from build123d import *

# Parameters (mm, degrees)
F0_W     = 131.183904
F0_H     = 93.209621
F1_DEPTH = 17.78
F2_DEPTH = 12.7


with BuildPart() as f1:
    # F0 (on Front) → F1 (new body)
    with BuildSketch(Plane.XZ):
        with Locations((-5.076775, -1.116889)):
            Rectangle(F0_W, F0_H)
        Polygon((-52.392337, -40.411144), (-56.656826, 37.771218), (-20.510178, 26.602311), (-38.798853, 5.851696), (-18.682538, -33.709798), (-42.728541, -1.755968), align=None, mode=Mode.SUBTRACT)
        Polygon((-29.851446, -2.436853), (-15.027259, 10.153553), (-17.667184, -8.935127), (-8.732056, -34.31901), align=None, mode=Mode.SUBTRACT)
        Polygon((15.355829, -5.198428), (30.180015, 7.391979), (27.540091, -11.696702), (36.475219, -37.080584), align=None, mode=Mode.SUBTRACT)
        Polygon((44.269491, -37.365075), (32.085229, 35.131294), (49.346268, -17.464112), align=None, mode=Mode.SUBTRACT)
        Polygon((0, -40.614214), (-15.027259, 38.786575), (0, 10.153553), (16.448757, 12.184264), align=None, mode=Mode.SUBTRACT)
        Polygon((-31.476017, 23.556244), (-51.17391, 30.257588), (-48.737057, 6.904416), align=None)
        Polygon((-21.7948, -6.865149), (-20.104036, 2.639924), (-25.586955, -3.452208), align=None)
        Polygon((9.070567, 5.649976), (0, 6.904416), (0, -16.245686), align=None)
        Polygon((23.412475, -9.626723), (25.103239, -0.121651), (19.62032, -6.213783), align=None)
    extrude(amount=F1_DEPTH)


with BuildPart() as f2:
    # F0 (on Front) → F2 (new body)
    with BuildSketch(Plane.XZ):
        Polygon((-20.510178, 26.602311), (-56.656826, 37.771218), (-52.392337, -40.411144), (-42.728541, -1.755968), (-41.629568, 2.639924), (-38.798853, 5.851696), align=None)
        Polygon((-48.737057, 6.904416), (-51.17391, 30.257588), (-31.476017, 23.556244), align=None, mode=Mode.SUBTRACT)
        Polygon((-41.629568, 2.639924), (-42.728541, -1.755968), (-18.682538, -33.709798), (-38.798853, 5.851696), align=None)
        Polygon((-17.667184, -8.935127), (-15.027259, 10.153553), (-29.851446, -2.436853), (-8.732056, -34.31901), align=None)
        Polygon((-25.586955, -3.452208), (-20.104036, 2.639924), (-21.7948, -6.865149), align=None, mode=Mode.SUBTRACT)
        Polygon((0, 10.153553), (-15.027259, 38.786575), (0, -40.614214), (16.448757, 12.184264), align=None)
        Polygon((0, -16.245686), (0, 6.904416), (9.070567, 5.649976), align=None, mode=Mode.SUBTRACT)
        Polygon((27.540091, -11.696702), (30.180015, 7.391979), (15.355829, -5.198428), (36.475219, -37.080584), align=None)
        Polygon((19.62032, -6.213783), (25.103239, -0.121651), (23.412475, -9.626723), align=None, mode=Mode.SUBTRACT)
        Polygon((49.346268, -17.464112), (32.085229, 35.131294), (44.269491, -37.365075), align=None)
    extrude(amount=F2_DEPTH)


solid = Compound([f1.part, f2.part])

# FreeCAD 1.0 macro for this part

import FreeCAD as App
import Part
import Sketcher
from FreeCAD import Vector
Q = App.Units.Quantity

doc = App.newDocument("Part")
body = doc.addObject("PartDesign::Body", "Body")
body.AllowCompound = True

sketch1 = doc.addObject("Sketcher::SketchObject", "Sketch")
body.addObject(sketch1)
sketch1.AttachmentSupport = (doc.XZ_Plane, [""])
sketch1.MapMode = "FlatFace"
sketch1.addGeometry([
    Part.LineSegment(Vector(-71, 45, 0), Vector(-71, -48, 0)),
    Part.LineSegment(Vector(-71, -48, 0), Vector(61, -48, 0)),
    Part.LineSegment(Vector(61, -48, 0), Vector(61, 45, 0)),
    Part.LineSegment(Vector(61, 45, 0), Vector(-71, 45, 0)),
    Part.LineSegment(Vector(-43, -2, 0), Vector(-52, -40, 0)),
    Part.LineSegment(Vector(-52, -40, 0), Vector(-57, 38, 0)),
    Part.LineSegment(Vector(-57, 38, 0), Vector(-21, 27, 0)),
    Part.LineSegment(Vector(-21, 27, 0), Vector(-39, 6, 0)),
    Part.LineSegment(Vector(-39, 6, 0), Vector(-19, -34, 0)),
    Part.LineSegment(Vector(-19, -34, 0), Vector(-43, -2, 0)),
    Part.LineSegment(Vector(-9, -34, 0), Vector(-30, -2, 0)),
    Part.LineSegment(Vector(-30, -2, 0), Vector(-15, 10, 0)),
    Part.LineSegment(Vector(-15, 10, 0), Vector(-18, -9, 0)),
    Part.LineSegment(Vector(-18, -9, 0), Vector(-9, -34, 0)),
    Part.LineSegment(Vector(36, -37, 0), Vector(15, -5, 0)),
    Part.LineSegment(Vector(15, -5, 0), Vector(30, 7, 0)),
    Part.LineSegment(Vector(30, 7, 0), Vector(28, -12, 0)),
    Part.LineSegment(Vector(28, -12, 0), Vector(36, -37, 0)),
    Part.LineSegment(Vector(49, -17, 0), Vector(44, -37, 0)),
    Part.LineSegment(Vector(44, -37, 0), Vector(32, 35, 0)),
    Part.LineSegment(Vector(32, 35, 0), Vector(49, -17, 0)),
    Part.LineSegment(Vector(16, 12, 0), Vector(0, -41, 0)),
    Part.LineSegment(Vector(0, -41, 0), Vector(-15, 39, 0)),
    Part.LineSegment(Vector(-15, 39, 0), Vector(0, 10, 0)),
    Part.LineSegment(Vector(0, 10, 0), Vector(16, 12, 0)),
    Part.LineSegment(Vector(-31, 24, 0), Vector(-51, 30, 0)),
    Part.LineSegment(Vector(-51, 30, 0), Vector(-49, 7, 0)),
    Part.LineSegment(Vector(-49, 7, 0), Vector(-31, 24, 0)),
    Part.LineSegment(Vector(-22, -7, 0), Vector(-20, 3, 0)),
    Part.LineSegment(Vector(-20, 3, 0), Vector(-26, -3, 0)),
    Part.LineSegment(Vector(-26, -3, 0), Vector(-22, -7, 0)),
    Part.LineSegment(Vector(9, 6, 0), Vector(0, 7, 0)),
    Part.LineSegment(Vector(0, 7, 0), Vector(0, -16, 0)),
    Part.LineSegment(Vector(0, -16, 0), Vector(9, 6, 0)),
    Part.LineSegment(Vector(23, -10, 0), Vector(25, 0, 0)),
    Part.LineSegment(Vector(25, 0, 0), Vector(20, -6, 0)),
    Part.LineSegment(Vector(20, -6, 0), Vector(23, -10, 0)),
], False)
sketch1.addConstraint([
    Sketcher.Constraint("Coincident", 0, 2, 1, 1),
    Sketcher.Constraint("Coincident", 1, 2, 2, 1),
    Sketcher.Constraint("Coincident", 2, 2, 3, 1),
    Sketcher.Constraint("Coincident", 3, 2, 0, 1),
    Sketcher.Constraint("Coincident", 4, 2, 5, 1),
    Sketcher.Constraint("Coincident", 5, 2, 6, 1),
    Sketcher.Constraint("Coincident", 6, 2, 7, 1),
    Sketcher.Constraint("Coincident", 7, 2, 8, 1),
    Sketcher.Constraint("Coincident", 8, 2, 9, 1),
    Sketcher.Constraint("Coincident", 9, 2, 4, 1),
    Sketcher.Constraint("Coincident", 10, 2, 11, 1),
    Sketcher.Constraint("Coincident", 11, 2, 12, 1),
    Sketcher.Constraint("Coincident", 12, 2, 13, 1),
    Sketcher.Constraint("Coincident", 13, 2, 10, 1),
    Sketcher.Constraint("Coincident", 14, 2, 15, 1),
    Sketcher.Constraint("Coincident", 15, 2, 16, 1),
    Sketcher.Constraint("Coincident", 16, 2, 17, 1),
    Sketcher.Constraint("Coincident", 17, 2, 14, 1),
    Sketcher.Constraint("Coincident", 18, 2, 19, 1),
    Sketcher.Constraint("Coincident", 19, 2, 20, 1),
    Sketcher.Constraint("Coincident", 20, 2, 18, 1),
    Sketcher.Constraint("Coincident", 21, 2, 22, 1),
    Sketcher.Constraint("Coincident", 22, 2, 23, 1),
    Sketcher.Constraint("Coincident", 23, 2, 24, 1),
    Sketcher.Constraint("Coincident", 24, 2, 21, 1),
    Sketcher.Constraint("Coincident", 25, 2, 26, 1),
    Sketcher.Constraint("Coincident", 26, 2, 27, 1),
    Sketcher.Constraint("Coincident", 27, 2, 25, 1),
    Sketcher.Constraint("Coincident", 28, 2, 29, 1),
    Sketcher.Constraint("Coincident", 29, 2, 30, 1),
    Sketcher.Constraint("Coincident", 30, 2, 28, 1),
    Sketcher.Constraint("Coincident", 31, 2, 32, 1),
    Sketcher.Constraint("Coincident", 32, 2, 33, 1),
    Sketcher.Constraint("Coincident", 33, 2, 31, 1),
    Sketcher.Constraint("Coincident", 34, 2, 35, 1),
    Sketcher.Constraint("Coincident", 35, 2, 36, 1),
    Sketcher.Constraint("Coincident", 36, 2, 34, 1),
    Sketcher.Constraint("Vertical", 0),
    Sketcher.Constraint("Horizontal", 1),
    Sketcher.Constraint("Vertical", 2),
    Sketcher.Constraint("Horizontal", 3),
    Sketcher.Constraint("Vertical", 32),
    Sketcher.Constraint("PointOnObject", 21, 2, -2),
    Sketcher.Constraint("PointOnObject", 23, 2, -2),
    Sketcher.Constraint("PointOnObject", 31, 2, -2),
    Sketcher.Constraint("Parallel", 10, 14),
    Sketcher.Constraint("Parallel", 11, 15),
    Sketcher.Constraint("Parallel", 12, 16),
    Sketcher.Constraint("Parallel", 13, 17),
    Sketcher.Constraint("Perpendicular", 29, 30),
    Sketcher.Constraint("Perpendicular", 16, 31),
    Sketcher.Constraint("Parallel", 28, 34),
    Sketcher.Constraint("Perpendicular", 30, 35),
    Sketcher.Constraint("Perpendicular", 35, 36),
    Sketcher.Constraint("Horizontal", 11, 2, 23, 2),
    Sketcher.Constraint("Horizontal", 26, 2, 31, 2),
    Sketcher.Constraint("Vertical", 11, 2, 22, 2),
    Sketcher.Constraint("Equal", 10, 14),
    Sketcher.Constraint("Equal", 11, 15),
    Sketcher.Constraint("Equal", 28, 34),
    Sketcher.Constraint("DistanceY", 16, 2, -1, 1, Q("0.4605001 in")),
    Sketcher.Constraint("Distance", 20, Q("55.355399 mm")),
    Sketcher.Constraint("Distance", 31, Q("9.156899 mm")),
    Sketcher.Constraint("DistanceY", 0, 2, 0, 1, Q("93.209621 mm")),
    Sketcher.Constraint("DistanceY", 0, 2, -1, 1, Q("47.721699 mm")),
    Sketcher.Constraint("DistanceX", 30, 2, -1, 1, Q("21.7948 mm")),
    Sketcher.Constraint("DistanceX", 3, 2, 5, 2, Q("14.011901 mm")),
    Sketcher.Constraint("DistanceX", 4, 2, 8, 2, Q("33.709799 mm")),
    Sketcher.Constraint("DistanceY", 0, 2, 8, 2, Q("14.011902 mm")),
    Sketcher.Constraint("DistanceY", 12, 2, 14, 2, Q("3.736699 mm")),
    Sketcher.Constraint("DistanceX", 12, 2, 15, 2, Q("47.847199 mm")),
    Sketcher.Constraint("DistanceX", 16, 2, 18, 2, Q("16.7294 mm")),
    Sketcher.Constraint("DistanceX", 14, 2, 19, 2, Q("16.7294 mm")),
    Sketcher.Constraint("DistanceY", 26, 2, 5, 2, Q("30.866802 mm")),
    Sketcher.Constraint("DistanceX", 7, 2, 29, 2, Q("13.211898 mm")),
    Sketcher.Constraint("Distance", 5, Q("78.29858 mm")),
    Sketcher.Constraint("Distance", 6, Q("37.832851 mm")),
    Sketcher.Constraint("Distance", 8, Q("44.38218 mm")),
    Sketcher.Constraint("Distance", 11, Q("19.449289 mm")),
    Sketcher.Constraint("Distance", 25, Q("20.80661 mm")),
    Sketcher.Constraint("Distance", 28, Q("9.654279 mm")),
    Sketcher.Constraint("Distance", 33, Q("23.70011 mm")),
    Sketcher.Constraint("DistanceX", 1, 1, 1, 2, Q("131.183904 mm")),
    Sketcher.Constraint("DistanceY", 32, 2, 32, 1, Q("23.150102 mm")),
    Sketcher.Constraint("DistanceX", 6, 2, -1, 1, Q("20.510178 mm")),
    Sketcher.Constraint("DistanceY", -1, 1, 6, 2, Q("26.602311 mm")),
    Sketcher.Constraint("DistanceX", 8, 2, -1, 1, Q("18.682538 mm")),
    Sketcher.Constraint("DistanceX", 9, 2, -1, 1, Q("42.728541 mm")),
    Sketcher.Constraint("DistanceX", 11, 2, -1, 1, Q("15.027259 mm")),
    Sketcher.Constraint("DistanceY", 13, 2, -1, 1, Q("34.31901 mm")),
    Sketcher.Constraint("DistanceX", -1, 1, 14, 2, Q("15.355829 mm")),
    Sketcher.Constraint("DistanceY", -1, 1, 15, 2, Q("7.391979 mm")),
    Sketcher.Constraint("DistanceX", -1, 1, 17, 2, Q("36.475219 mm")),
    Sketcher.Constraint("DistanceX", -1, 1, 20, 2, Q("49.346268 mm")),
    Sketcher.Constraint("DistanceY", 20, 2, -1, 1, Q("17.464112 mm")),
    Sketcher.Constraint("DistanceX", 25, 2, -1, 1, Q("51.17391 mm")),
    Sketcher.Constraint("DistanceY", 29, 2, -1, 1, Q("3.452208 mm")),
    Sketcher.Constraint("DistanceY", 30, 2, -1, 1, Q("6.865149 mm")),
    Sketcher.Constraint("DistanceX", -1, 1, 34, 2, Q("25.103239 mm")),
    Sketcher.Constraint("DistanceY", 34, 2, -1, 1, Q("0.121651 mm")),
    Sketcher.Constraint("DistanceX", -1, 1, 35, 2, Q("19.62032 mm")),
    Sketcher.Constraint("DistanceX", 0, 2, 4, 2, Q("18.27639 mm")),
    Sketcher.Constraint("DistanceY", 9, 2, 6, 2, Q("28.358279 mm")),
    Sketcher.Constraint("DistanceY", 18, 2, 17, 2, Q("0.284491 mm")),
    Sketcher.Constraint("DistanceY", 21, 2, 17, 2, Q("3.53363 mm")),
    Sketcher.Constraint("DistanceY", 11, 2, 22, 2, Q("28.633022 mm")),
    Sketcher.Constraint("DistanceY", 23, 2, 24, 2, Q("2.030711 mm")),
    Sketcher.Constraint("DistanceX", 14, 2, 24, 2, Q("1.092928 mm")),
    Sketcher.Constraint("DistanceY", 25, 2, 5, 2, Q("7.51363 mm")),
    Sketcher.Constraint("DistanceX", 26, 2, 10, 2, Q("18.885611 mm")),
    Sketcher.Constraint("DistanceX", 27, 2, 6, 2, Q("10.965839 mm")),
])
pad1 = doc.addObject("PartDesign::Pad", "Pad")
body.addObject(pad1)
pad1.Profile = sketch1
pad1.Length = Q("0.7 in")
body2 = doc.addObject("PartDesign::Body", "Body001")
body2.AllowCompound = True

sketch2 = doc.addObject("Sketcher::SketchObject", "Sketch001")
body2.addObject(sketch2)
sketch2.AttachmentSupport = (doc.getObject("XZ_Plane001"), [""])
sketch2.MapMode = "FlatFace"
sketch2.addGeometry([
    Part.LineSegment(Vector(-21, 27, 0), Vector(-57, 38, 0)),
    Part.LineSegment(Vector(-57, 38, 0), Vector(-52, -40, 0)),
    Part.LineSegment(Vector(-52, -40, 0), Vector(-43, -2, 0)),
    Part.LineSegment(Vector(-43, -2, 0), Vector(-19, -34, 0)),
    Part.LineSegment(Vector(-19, -34, 0), Vector(-39, 6, 0)),
    Part.LineSegment(Vector(-39, 6, 0), Vector(-21, 27, 0)),
    Part.LineSegment(Vector(-31, 24, 0), Vector(-49, 7, 0)),
    Part.LineSegment(Vector(-49, 7, 0), Vector(-51, 30, 0)),
    Part.LineSegment(Vector(-51, 30, 0), Vector(-31, 24, 0)),
    Part.LineSegment(Vector(-18, -9, 0), Vector(-15, 10, 0)),
    Part.LineSegment(Vector(-15, 10, 0), Vector(-30, -2, 0)),
    Part.LineSegment(Vector(-30, -2, 0), Vector(-9, -34, 0)),
    Part.LineSegment(Vector(-9, -34, 0), Vector(-18, -9, 0)),
    Part.LineSegment(Vector(-22, -7, 0), Vector(-26, -3, 0)),
    Part.LineSegment(Vector(-26, -3, 0), Vector(-20, 3, 0)),
    Part.LineSegment(Vector(-20, 3, 0), Vector(-22, -7, 0)),
    Part.LineSegment(Vector(0, 10, 0), Vector(-15, 39, 0)),
    Part.LineSegment(Vector(-15, 39, 0), Vector(0, -41, 0)),
    Part.LineSegment(Vector(0, -41, 0), Vector(16, 12, 0)),
    Part.LineSegment(Vector(16, 12, 0), Vector(0, 10, 0)),
    Part.LineSegment(Vector(9, 6, 0), Vector(0, -16, 0)),
    Part.LineSegment(Vector(0, -16, 0), Vector(0, 7, 0)),
    Part.LineSegment(Vector(0, 7, 0), Vector(9, 6, 0)),
    Part.LineSegment(Vector(28, -12, 0), Vector(30, 7, 0)),
    Part.LineSegment(Vector(30, 7, 0), Vector(15, -5, 0)),
    Part.LineSegment(Vector(15, -5, 0), Vector(36, -37, 0)),
    Part.LineSegment(Vector(36, -37, 0), Vector(28, -12, 0)),
    Part.LineSegment(Vector(23, -10, 0), Vector(20, -6, 0)),
    Part.LineSegment(Vector(20, -6, 0), Vector(25, 0, 0)),
    Part.LineSegment(Vector(25, 0, 0), Vector(23, -10, 0)),
    Part.LineSegment(Vector(49, -17, 0), Vector(32, 35, 0)),
    Part.LineSegment(Vector(32, 35, 0), Vector(44, -37, 0)),
    Part.LineSegment(Vector(44, -37, 0), Vector(49, -17, 0)),
], False)
sketch2.addConstraint([
    Sketcher.Constraint("Coincident", 0, 2, 1, 1),
    Sketcher.Constraint("Coincident", 1, 2, 2, 1),
    Sketcher.Constraint("Coincident", 2, 2, 3, 1),
    Sketcher.Constraint("Coincident", 3, 2, 4, 1),
    Sketcher.Constraint("Coincident", 4, 2, 5, 1),
    Sketcher.Constraint("Coincident", 5, 2, 0, 1),
    Sketcher.Constraint("Coincident", 6, 2, 7, 1),
    Sketcher.Constraint("Coincident", 7, 2, 8, 1),
    Sketcher.Constraint("Coincident", 8, 2, 6, 1),
    Sketcher.Constraint("Coincident", 9, 2, 10, 1),
    Sketcher.Constraint("Coincident", 10, 2, 11, 1),
    Sketcher.Constraint("Coincident", 11, 2, 12, 1),
    Sketcher.Constraint("Coincident", 12, 2, 9, 1),
    Sketcher.Constraint("Coincident", 13, 2, 14, 1),
    Sketcher.Constraint("Coincident", 14, 2, 15, 1),
    Sketcher.Constraint("Coincident", 15, 2, 13, 1),
    Sketcher.Constraint("Coincident", 16, 2, 17, 1),
    Sketcher.Constraint("Coincident", 17, 2, 18, 1),
    Sketcher.Constraint("Coincident", 18, 2, 19, 1),
    Sketcher.Constraint("Coincident", 19, 2, 16, 1),
    Sketcher.Constraint("Coincident", 20, 2, 21, 1),
    Sketcher.Constraint("Coincident", 21, 2, 22, 1),
    Sketcher.Constraint("Coincident", 22, 2, 20, 1),
    Sketcher.Constraint("Coincident", 23, 2, 24, 1),
    Sketcher.Constraint("Coincident", 24, 2, 25, 1),
    Sketcher.Constraint("Coincident", 25, 2, 26, 1),
    Sketcher.Constraint("Coincident", 26, 2, 23, 1),
    Sketcher.Constraint("Coincident", 27, 2, 28, 1),
    Sketcher.Constraint("Coincident", 28, 2, 29, 1),
    Sketcher.Constraint("Coincident", 29, 2, 27, 1),
    Sketcher.Constraint("Coincident", 30, 2, 31, 1),
    Sketcher.Constraint("Coincident", 31, 2, 32, 1),
    Sketcher.Constraint("Coincident", 32, 2, 30, 1),
    Sketcher.Constraint("Vertical", 21),
    Sketcher.Constraint("PointOnObject", 17, 2, -2),
    Sketcher.Constraint("PointOnObject", 19, 2, -2),
    Sketcher.Constraint("PointOnObject", 20, 2, -2),
    Sketcher.Constraint("Perpendicular", 13, 14),
    Sketcher.Constraint("Perpendicular", 9, 22),
    Sketcher.Constraint("Perpendicular", 22, 23),
    Sketcher.Constraint("Parallel", 10, 24),
    Sketcher.Constraint("Parallel", 11, 25),
    Sketcher.Constraint("Parallel", 12, 26),
    Sketcher.Constraint("Perpendicular", 14, 27),
    Sketcher.Constraint("Perpendicular", 27, 28),
    Sketcher.Constraint("Parallel", 15, 29),
    Sketcher.Constraint("Horizontal", 9, 2, 19, 2),
    Sketcher.Constraint("Horizontal", 6, 2, 21, 2),
    Sketcher.Constraint("Vertical", 9, 2, 16, 2),
    Sketcher.Constraint("Equal", 9, 23),
    Sketcher.Constraint("Equal", 10, 24),
    Sketcher.Constraint("Equal", 13, 27),
    Sketcher.Constraint("DistanceY", 26, 2, -1, 1, Q("0.4605001 in")),
    Sketcher.Constraint("Distance", 22, Q("9.156899 mm")),
    Sketcher.Constraint("Distance", 30, Q("55.355399 mm")),
    Sketcher.Constraint("DistanceX", 15, 2, -1, 1, Q("21.7948 mm")),
    Sketcher.Constraint("DistanceX", 1, 2, 3, 2, Q("33.709799 mm")),
    Sketcher.Constraint("DistanceY", 6, 2, 0, 2, Q("30.866802 mm")),
    Sketcher.Constraint("DistanceX", 4, 2, 13, 2, Q("13.211898 mm")),
    Sketcher.Constraint("DistanceY", 25, 2, 20, 2, Q("20.834898 mm")),
    Sketcher.Constraint("DistanceX", 26, 2, 31, 2, Q("16.7294 mm")),
    Sketcher.Constraint("Distance", 0, Q("37.832851 mm")),
    Sketcher.Constraint("Distance", 1, Q("78.29858 mm")),
    Sketcher.Constraint("Distance", 4, Q("44.38218 mm")),
    Sketcher.Constraint("Distance", 8, Q("20.80661 mm")),
    Sketcher.Constraint("Distance", 10, Q("19.449289 mm")),
    Sketcher.Constraint("Distance", 15, Q("9.654279 mm")),
    Sketcher.Constraint("Distance", 20, Q("23.70011 mm")),
    Sketcher.Constraint("DistanceY", 21, 1, 21, 2, Q("23.150102 mm")),
    Sketcher.Constraint("DistanceX", 2, 2, -1, 1, Q("42.728541 mm")),
    Sketcher.Constraint("DistanceX", 3, 2, -1, 1, Q("18.682538 mm")),
    Sketcher.Constraint("DistanceX", 5, 2, -1, 1, Q("20.510178 mm")),
    Sketcher.Constraint("DistanceY", -1, 1, 5, 2, Q("26.602311 mm")),
    Sketcher.Constraint("DistanceX", 7, 2, -1, 1, Q("51.17391 mm")),
    Sketcher.Constraint("DistanceX", 9, 2, -1, 1, Q("15.027259 mm")),
    Sketcher.Constraint("DistanceY", 11, 2, -1, 1, Q("34.31901 mm")),
    Sketcher.Constraint("DistanceY", 13, 2, -1, 1, Q("3.452208 mm")),
    Sketcher.Constraint("DistanceY", 15, 2, -1, 1, Q("6.865149 mm")),
    Sketcher.Constraint("DistanceY", -1, 1, 23, 2, Q("7.391979 mm")),
    Sketcher.Constraint("DistanceX", -1, 1, 24, 2, Q("15.355829 mm")),
    Sketcher.Constraint("DistanceX", -1, 1, 25, 2, Q("36.475219 mm")),
    Sketcher.Constraint("DistanceX", -1, 1, 26, 2, Q("27.540091 mm")),
    Sketcher.Constraint("DistanceX", -1, 1, 27, 2, Q("19.62032 mm")),
    Sketcher.Constraint("DistanceX", -1, 1, 28, 2, Q("25.103239 mm")),
    Sketcher.Constraint("DistanceY", 28, 2, -1, 1, Q("0.121651 mm")),
    Sketcher.Constraint("DistanceX", -1, 1, 30, 2, Q("32.085229 mm")),
    Sketcher.Constraint("DistanceX", -1, 1, 32, 2, Q("49.346268 mm")),
    Sketcher.Constraint("DistanceY", 32, 2, -1, 1, Q("17.464112 mm")),
    Sketcher.Constraint("DistanceX", 0, 2, 1, 2, Q("4.264489 mm")),
    Sketcher.Constraint("DistanceY", 3, 2, 2, 2, Q("31.95383 mm")),
    Sketcher.Constraint("DistanceY", 4, 2, 0, 2, Q("31.919522 mm")),
    Sketcher.Constraint("DistanceX", 0, 2, 6, 2, Q("7.919769 mm")),
    Sketcher.Constraint("DistanceY", 7, 2, 0, 2, Q("7.51363 mm")),
    Sketcher.Constraint("DistanceX", 8, 2, 5, 2, Q("10.965839 mm")),
    Sketcher.Constraint("DistanceY", 8, 2, 16, 2, Q("15.230331 mm")),
    Sketcher.Constraint("DistanceY", 9, 2, 18, 2, Q("2.030711 mm")),
    Sketcher.Constraint("DistanceX", 12, 2, 18, 2, Q("34.115941 mm")),
    Sketcher.Constraint("DistanceY", 17, 2, 25, 2, Q("3.53363 mm")),
    Sketcher.Constraint("DistanceY", 31, 2, 25, 2, Q("0.284491 mm")),
])
pad2 = doc.addObject("PartDesign::Pad", "Pad001")
body2.addObject(pad2)
pad2.Profile = sketch2
pad2.Length = Q("0.5 in")

doc.recompute()
